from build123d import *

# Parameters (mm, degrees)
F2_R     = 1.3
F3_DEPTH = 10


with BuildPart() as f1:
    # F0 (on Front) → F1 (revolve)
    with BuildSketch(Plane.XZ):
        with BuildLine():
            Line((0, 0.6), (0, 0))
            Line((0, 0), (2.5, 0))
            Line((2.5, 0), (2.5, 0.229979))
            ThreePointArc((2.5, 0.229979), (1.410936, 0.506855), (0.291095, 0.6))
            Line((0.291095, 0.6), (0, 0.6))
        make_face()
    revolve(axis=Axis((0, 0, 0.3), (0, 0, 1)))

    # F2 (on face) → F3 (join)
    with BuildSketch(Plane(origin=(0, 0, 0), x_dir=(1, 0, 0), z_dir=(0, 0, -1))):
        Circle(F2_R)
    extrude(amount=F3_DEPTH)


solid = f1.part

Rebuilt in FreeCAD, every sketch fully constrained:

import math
import FreeCAD as App
import Part
import Sketcher

doc = App.newDocument("Part")
body = doc.addObject("PartDesign::Body", "Body")

# Sketch on XZ plane
sketch1 = body.newObject("Sketcher::SketchObject", "Sketch")
sketch1.AttachmentSupport = (doc.getObject("XZ_Plane"), [""])
sketch1.MapMode = "FlatFace"
sketch1.addGeometry([
    Part.LineSegment(App.Vector(0, 0.6, 0), App.Vector(0, 0, 0)),  # 0
    Part.LineSegment(App.Vector(0, 0, 0), App.Vector(2.5, 0, 0)),  # 1
    Part.LineSegment(App.Vector(2.5, 0, 0), App.Vector(2.5, 0.23, 0)),  # 2
    Part.ArcOfCircle(Part.Circle(App.Vector(0.29, -6.18, 0), App.Vector(0, 0, 1), 6.78), math.radians(70.98), math.radians(90)),  # 3
    Part.LineSegment(App.Vector(0.29, 0.6, 0), App.Vector(0, 0.6, 0)),  # 4
], False)
sketch1.addConstraint([
    Sketcher.Constraint("Coincident", 0, 2, 1, 1),
    Sketcher.Constraint("Coincident", 1, 2, 2, 1),
    Sketcher.Constraint("Coincident", 2, 2, 3, 1),
    Sketcher.Constraint("Tangent", 3, 2, 4, 1),
    Sketcher.Constraint("Coincident", 4, 2, 0, 1),
    Sketcher.Constraint("Vertical", 0),
    Sketcher.Constraint("Horizontal", 1),
    Sketcher.Constraint("Vertical", 2),
    Sketcher.Constraint("Horizontal", 4),
    Sketcher.Constraint("Coincident", 0, 2, -1, 1),
    Sketcher.Constraint("DistanceX", 1, 1, 1, 2, 2.5),
    Sketcher.Constraint("DistanceY", 0, 2, 0, 1, 0.6),
    Sketcher.Constraint("Radius", 3, 6.778217),
    Sketcher.Constraint("DistanceY", 2, 1, 2, 2, 0.229979),
])
revolution = body.newObject("PartDesign::Revolution", "Revolution")
revolution.Profile = sketch1
revolution.ReferenceAxis = (sketch1, ["V_Axis"])
revolution.Angle = 360

# Sketch on XY plane
sketch2 = body.newObject("Sketcher::SketchObject", "Sketch001")
sketch2.AttachmentSupport = (doc.getObject("XY_Plane"), [""])
sketch2.MapMode = "FlatFace"
sketch2.addGeometry(Part.Circle(App.Vector(0, 0, 0), App.Vector(0, 0, 1), 1.3), False)
sketch2.addConstraint([
    Sketcher.Constraint("Coincident", 0, 3, -1, 1),
    Sketcher.Constraint("Diameter", 0, 2.6),
])
pad1 = body.newObject("PartDesign::Pad", "Pad")
pad1.Profile = sketch2
pad1.Length = 10
pad1.Reversed = True

doc.recompute()
